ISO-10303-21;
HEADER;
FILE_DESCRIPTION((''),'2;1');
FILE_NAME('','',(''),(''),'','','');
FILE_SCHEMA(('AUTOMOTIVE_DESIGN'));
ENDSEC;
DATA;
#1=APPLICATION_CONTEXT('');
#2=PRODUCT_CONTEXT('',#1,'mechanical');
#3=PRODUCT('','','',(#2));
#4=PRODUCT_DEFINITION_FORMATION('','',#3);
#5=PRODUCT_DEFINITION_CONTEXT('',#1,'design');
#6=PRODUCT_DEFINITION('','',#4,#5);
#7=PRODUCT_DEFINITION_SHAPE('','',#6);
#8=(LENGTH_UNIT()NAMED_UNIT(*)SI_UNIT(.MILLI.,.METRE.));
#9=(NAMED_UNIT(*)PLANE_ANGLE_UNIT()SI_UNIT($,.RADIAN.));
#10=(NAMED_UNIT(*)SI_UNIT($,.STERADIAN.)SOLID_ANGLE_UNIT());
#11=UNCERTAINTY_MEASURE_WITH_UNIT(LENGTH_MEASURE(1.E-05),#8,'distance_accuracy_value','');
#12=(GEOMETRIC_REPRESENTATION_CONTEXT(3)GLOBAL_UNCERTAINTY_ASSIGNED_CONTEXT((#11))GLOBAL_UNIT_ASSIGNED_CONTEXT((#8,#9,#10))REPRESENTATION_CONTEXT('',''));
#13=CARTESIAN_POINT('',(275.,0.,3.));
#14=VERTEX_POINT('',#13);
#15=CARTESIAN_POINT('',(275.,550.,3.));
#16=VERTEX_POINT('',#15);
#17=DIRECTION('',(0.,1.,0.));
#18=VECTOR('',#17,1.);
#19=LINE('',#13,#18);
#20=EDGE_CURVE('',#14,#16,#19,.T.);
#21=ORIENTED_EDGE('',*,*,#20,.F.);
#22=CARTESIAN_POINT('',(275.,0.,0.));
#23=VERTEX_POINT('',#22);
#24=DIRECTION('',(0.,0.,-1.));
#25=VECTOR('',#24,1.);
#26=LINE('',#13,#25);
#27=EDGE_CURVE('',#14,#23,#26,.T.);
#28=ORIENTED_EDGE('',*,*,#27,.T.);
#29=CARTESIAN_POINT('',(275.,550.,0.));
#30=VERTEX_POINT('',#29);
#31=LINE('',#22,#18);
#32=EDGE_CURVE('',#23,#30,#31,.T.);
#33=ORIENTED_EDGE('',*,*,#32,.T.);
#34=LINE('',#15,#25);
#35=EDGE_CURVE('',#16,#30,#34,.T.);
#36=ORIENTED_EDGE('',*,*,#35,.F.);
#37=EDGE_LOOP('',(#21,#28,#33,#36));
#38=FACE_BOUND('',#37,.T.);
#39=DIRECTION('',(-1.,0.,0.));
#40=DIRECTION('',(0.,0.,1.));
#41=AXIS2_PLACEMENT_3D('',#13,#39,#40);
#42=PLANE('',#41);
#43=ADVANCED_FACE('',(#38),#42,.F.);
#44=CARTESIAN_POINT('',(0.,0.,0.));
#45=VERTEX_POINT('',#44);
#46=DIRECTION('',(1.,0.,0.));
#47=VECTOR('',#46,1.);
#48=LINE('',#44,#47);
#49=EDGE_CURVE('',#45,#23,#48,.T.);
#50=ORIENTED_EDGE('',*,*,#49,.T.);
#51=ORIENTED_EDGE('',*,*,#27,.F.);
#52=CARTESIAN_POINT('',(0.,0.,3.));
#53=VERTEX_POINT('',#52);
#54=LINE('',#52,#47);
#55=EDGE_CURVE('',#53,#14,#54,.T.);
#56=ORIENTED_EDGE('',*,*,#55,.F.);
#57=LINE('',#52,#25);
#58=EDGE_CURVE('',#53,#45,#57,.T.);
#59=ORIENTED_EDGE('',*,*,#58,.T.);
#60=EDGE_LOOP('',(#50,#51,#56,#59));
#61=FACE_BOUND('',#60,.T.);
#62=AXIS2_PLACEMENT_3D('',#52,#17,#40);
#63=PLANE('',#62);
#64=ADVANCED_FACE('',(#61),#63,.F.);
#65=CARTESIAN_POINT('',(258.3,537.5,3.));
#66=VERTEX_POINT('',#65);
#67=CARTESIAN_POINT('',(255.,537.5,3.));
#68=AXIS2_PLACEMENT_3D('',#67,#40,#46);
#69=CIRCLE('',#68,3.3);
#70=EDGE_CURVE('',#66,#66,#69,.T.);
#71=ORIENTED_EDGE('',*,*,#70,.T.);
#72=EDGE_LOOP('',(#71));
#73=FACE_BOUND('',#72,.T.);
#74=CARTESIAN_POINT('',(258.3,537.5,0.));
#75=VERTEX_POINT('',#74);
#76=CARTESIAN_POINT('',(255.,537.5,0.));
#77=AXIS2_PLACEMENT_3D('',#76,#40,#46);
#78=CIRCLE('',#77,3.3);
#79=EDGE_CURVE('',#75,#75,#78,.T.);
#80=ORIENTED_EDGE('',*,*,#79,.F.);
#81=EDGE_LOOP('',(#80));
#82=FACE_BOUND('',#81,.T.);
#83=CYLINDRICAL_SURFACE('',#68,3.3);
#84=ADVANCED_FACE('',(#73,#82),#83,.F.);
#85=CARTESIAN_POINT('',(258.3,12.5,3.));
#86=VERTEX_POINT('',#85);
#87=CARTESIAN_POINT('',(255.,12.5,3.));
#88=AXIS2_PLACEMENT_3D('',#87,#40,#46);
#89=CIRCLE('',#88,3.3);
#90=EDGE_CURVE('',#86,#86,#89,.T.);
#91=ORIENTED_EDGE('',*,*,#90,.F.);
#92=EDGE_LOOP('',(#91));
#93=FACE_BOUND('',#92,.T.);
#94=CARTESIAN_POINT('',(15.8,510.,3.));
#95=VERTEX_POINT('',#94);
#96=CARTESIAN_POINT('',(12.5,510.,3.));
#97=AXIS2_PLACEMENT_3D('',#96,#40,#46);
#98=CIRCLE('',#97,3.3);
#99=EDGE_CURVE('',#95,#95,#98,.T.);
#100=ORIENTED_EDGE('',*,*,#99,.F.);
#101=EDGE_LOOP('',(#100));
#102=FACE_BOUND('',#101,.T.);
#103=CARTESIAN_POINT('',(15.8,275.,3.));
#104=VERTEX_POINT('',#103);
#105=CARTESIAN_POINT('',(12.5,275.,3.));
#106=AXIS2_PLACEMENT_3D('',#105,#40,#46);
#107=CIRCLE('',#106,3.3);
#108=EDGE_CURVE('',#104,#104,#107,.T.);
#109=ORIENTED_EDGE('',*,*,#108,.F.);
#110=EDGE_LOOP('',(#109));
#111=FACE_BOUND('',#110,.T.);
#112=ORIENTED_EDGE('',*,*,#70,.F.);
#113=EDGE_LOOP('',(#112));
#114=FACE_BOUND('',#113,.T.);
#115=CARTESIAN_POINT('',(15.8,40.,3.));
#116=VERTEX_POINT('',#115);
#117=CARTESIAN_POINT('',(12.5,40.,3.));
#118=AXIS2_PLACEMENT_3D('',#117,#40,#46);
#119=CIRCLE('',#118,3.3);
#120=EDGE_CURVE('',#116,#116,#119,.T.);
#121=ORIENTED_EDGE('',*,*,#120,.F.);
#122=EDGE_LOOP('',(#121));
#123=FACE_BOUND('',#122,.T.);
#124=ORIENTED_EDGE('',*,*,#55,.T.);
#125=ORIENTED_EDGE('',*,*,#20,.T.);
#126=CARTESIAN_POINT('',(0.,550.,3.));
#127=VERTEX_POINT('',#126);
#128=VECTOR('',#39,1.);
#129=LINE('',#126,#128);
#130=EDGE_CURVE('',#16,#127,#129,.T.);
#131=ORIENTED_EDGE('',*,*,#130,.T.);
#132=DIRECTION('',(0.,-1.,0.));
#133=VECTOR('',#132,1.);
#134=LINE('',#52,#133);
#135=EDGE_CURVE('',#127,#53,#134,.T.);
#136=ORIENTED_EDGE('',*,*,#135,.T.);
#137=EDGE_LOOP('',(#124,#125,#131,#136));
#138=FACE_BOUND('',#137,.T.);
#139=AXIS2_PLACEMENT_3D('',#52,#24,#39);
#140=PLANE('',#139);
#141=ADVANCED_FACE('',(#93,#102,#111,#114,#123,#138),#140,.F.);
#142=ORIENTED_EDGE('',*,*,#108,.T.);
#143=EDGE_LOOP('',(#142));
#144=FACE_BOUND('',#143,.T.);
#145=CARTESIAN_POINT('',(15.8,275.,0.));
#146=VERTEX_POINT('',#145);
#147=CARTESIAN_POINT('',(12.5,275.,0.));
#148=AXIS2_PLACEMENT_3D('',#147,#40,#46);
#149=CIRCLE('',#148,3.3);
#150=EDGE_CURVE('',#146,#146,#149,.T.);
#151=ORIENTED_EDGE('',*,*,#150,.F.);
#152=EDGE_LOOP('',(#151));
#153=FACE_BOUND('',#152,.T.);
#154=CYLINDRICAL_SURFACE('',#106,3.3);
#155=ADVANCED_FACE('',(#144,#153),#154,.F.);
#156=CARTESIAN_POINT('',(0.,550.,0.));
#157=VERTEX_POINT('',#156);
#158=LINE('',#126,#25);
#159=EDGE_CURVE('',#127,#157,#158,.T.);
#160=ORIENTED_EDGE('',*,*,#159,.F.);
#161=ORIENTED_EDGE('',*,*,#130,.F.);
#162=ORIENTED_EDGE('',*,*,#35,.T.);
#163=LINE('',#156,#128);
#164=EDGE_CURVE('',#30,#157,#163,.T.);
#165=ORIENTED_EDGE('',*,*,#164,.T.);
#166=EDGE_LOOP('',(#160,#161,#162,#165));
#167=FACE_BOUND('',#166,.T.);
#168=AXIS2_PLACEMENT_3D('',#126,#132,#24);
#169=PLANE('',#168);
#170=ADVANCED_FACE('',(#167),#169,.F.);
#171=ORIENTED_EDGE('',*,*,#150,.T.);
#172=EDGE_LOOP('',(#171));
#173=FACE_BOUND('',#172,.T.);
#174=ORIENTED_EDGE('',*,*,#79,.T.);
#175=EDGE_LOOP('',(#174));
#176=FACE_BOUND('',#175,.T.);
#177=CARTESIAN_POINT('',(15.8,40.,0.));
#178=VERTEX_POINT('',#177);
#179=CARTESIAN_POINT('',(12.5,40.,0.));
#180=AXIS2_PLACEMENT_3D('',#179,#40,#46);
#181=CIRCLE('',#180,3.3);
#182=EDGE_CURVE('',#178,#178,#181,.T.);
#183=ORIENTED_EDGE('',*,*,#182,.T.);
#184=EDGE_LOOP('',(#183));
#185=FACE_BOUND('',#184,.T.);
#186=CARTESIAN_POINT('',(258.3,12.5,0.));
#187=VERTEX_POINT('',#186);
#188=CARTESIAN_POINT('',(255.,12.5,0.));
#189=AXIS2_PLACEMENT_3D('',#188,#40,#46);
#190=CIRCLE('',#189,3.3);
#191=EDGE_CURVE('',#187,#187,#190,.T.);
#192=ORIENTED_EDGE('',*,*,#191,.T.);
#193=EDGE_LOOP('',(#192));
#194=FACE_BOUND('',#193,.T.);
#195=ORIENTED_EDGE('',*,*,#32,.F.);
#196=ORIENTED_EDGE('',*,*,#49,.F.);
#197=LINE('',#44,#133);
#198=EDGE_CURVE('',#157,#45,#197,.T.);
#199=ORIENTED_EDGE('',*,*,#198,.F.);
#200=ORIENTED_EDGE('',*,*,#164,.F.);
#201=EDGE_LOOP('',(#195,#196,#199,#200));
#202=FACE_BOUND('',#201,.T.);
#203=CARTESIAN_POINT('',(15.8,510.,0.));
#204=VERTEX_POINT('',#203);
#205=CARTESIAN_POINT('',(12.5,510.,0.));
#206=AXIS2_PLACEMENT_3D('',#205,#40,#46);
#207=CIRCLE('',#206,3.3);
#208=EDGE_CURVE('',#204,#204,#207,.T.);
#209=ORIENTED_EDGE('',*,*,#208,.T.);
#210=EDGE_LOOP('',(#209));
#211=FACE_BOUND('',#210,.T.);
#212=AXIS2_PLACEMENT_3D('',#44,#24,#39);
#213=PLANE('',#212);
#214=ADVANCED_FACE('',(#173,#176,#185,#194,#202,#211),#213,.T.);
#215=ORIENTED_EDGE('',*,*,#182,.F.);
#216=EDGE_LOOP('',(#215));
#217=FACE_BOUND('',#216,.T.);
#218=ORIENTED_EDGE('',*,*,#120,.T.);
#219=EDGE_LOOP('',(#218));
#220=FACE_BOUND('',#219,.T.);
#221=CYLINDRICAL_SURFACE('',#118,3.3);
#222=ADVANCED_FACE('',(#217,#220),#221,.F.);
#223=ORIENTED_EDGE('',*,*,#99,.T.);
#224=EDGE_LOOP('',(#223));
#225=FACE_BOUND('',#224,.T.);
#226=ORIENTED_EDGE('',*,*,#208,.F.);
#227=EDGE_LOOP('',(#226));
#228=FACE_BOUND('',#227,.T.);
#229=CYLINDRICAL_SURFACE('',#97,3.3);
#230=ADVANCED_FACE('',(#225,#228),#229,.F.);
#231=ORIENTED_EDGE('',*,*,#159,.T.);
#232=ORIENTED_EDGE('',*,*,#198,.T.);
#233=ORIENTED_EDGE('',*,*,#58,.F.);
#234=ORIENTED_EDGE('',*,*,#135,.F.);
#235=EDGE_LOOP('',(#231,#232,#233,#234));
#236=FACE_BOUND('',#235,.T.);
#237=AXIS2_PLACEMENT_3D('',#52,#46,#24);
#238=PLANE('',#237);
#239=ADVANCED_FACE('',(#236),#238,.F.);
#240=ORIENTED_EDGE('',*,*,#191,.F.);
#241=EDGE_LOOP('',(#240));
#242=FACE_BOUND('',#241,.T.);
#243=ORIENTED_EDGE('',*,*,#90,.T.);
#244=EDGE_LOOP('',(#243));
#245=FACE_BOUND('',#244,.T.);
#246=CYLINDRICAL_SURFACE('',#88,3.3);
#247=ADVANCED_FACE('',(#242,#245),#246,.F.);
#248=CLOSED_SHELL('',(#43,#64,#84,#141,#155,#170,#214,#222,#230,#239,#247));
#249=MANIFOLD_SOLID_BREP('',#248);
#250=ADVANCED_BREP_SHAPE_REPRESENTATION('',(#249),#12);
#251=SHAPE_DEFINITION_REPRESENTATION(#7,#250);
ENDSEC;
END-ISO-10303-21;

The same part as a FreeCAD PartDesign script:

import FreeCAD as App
import Part
import Sketcher

V = App.Vector
Q = App.Units.Quantity


def add_polygon(sketch, points):
    """Adds a closed chain of lines whose ends are joined by coincident constraints."""
    first, n = sketch.GeometryCount, len(points)
    for a, b in zip(points, points[1:] + points[:1]):
        sketch.addGeometry(Part.LineSegment(App.Vector(*a, 0), App.Vector(*b, 0)), False)
    for i in range(n):
        sketch.addConstraint(Sketcher.Constraint("Coincident", first + i, 2, first + (i + 1) % n, 1))

doc = App.newDocument("Part")
params = doc.addObject("Spreadsheet::Sheet", "Params")
for row, (alias, value) in enumerate([
    ("sketch1_width", "275 mm"),
    ("sketch1_height", "550 mm"),
    ("pad1_length", "3 mm"),
    ("sketch2_diameter", "6.6 mm"),
    ("hole_diameter", "6.6 mm"),
], start=1):
    params.set(f"A{row}", alias)
    params.set(f"B{row}", "=" + value)
    params.setAlias(f"B{row}", alias)

body = doc.addObject("PartDesign::Body", "Body")

sketch1 = body.newObject("Sketcher::SketchObject", "Sketch")
sketch1.AttachmentSupport = (doc.getObject("XY_Plane"), [""])
sketch1.MapMode = "FlatFace"
add_polygon(sketch1, [(0, 550), (0, 0), (275, 0), (275, 550)])
sketch1.addConstraint(Sketcher.Constraint("Vertical", 0))
sketch1.addConstraint(Sketcher.Constraint("Horizontal", 1))
sketch1.addConstraint(Sketcher.Constraint("Vertical", 2))
sketch1.addConstraint(Sketcher.Constraint("Horizontal", 3))
sketch1.addConstraint(Sketcher.Constraint("Coincident", 0, 2, -1, 1))
sketch1.addConstraint(Sketcher.Constraint("DistanceX", 1, 1, 1, 2, Q("275 mm")))
sketch1.addConstraint(Sketcher.Constraint("DistanceY", 0, 2, 0, 1, Q("550 mm")))
sketch1.setExpression("Constraints[9]", "Params.sketch1_width")
sketch1.setExpression("Constraints[10]", "Params.sketch1_height")
pad1 = body.newObject("PartDesign::Pad", "Pad")
pad1.Profile = sketch1
pad1.setExpression("Length", "Params.pad1_length")

sketch2 = body.newObject("Sketcher::SketchObject", "Sketch001")
sketch2.AttachmentSupport = (doc.getObject("XY_Plane"), [""])
sketch2.MapMode = "FlatFace"
sketch2.AttachmentOffset = App.Placement(V(0, 0, 3), App.Rotation())
sketch2.addGeometry(Part.Circle(V(12.5, 275, 0), V(0, 0, 1), 3.3), False)
sketch2.addGeometry(Part.Circle(V(12.5, 510, 0), V(0, 0, 1), 3.3), False)
sketch2.addGeometry(Part.Circle(V(12.5, 40, 0), V(0, 0, 1), 3.3), False)
sketch2.addGeometry(Part.Circle(V(255, 12.5, 0), V(0, 0, 1), 3.3), False)
sketch2.addGeometry(Part.Circle(V(255, 537.5, 0), V(0, 0, 1), 3.3), False)
sketch2.addConstraint(Sketcher.Constraint("Equal", 0, 1))
sketch2.addConstraint(Sketcher.Constraint("Equal", 1, 2))
sketch2.addConstraint(Sketcher.Constraint("Equal", 2, 3))
sketch2.addConstraint(Sketcher.Constraint("Equal", 3, 4))
sketch2.addConstraint(Sketcher.Constraint("Vertical", 0, 3, 1, 3))
sketch2.addConstraint(Sketcher.Constraint("Vertical", 1, 3, 2, 3))
sketch2.addConstraint(Sketcher.Constraint("Vertical", 3, 3, 4, 3))
sketch2.addConstraint(Sketcher.Constraint("Diameter", 0, Q("6.6 mm")))
sketch2.addConstraint(Sketcher.Constraint("DistanceY", -1, 1, 0, 3, Q("275 mm")))
sketch2.addConstraint(Sketcher.Constraint("DistanceY", -1, 1, 1, 3, Q("510 mm")))
sketch2.addConstraint(Sketcher.Constraint("DistanceY", -1, 1, 2, 3, Q("40 mm")))
sketch2.addConstraint(Sketcher.Constraint("DistanceX", -1, 1, 3, 3, Q("255 mm")))
sketch2.addConstraint(Sketcher.Constraint("DistanceY", 3, 3, 4, 3, Q("525 mm")))
sketch2.addConstraint(Sketcher.Constraint("DistanceX", -1, 1, 0, 3, Q("12.5 mm")))
sketch2.addConstraint(Sketcher.Constraint("DistanceY", -1, 1, 3, 3, Q("12.5 mm")))
sketch2.setExpression("Constraints[7]", "Params.sketch2_diameter")
doc.recompute()
hole = body.newObject("PartDesign::Hole", "Hole")
hole.Profile = sketch2
hole.ThreadType = "None"
hole.setExpression("Diameter", "Params.hole_diameter")
hole.DepthType = "ThroughAll"

doc.recompute()
